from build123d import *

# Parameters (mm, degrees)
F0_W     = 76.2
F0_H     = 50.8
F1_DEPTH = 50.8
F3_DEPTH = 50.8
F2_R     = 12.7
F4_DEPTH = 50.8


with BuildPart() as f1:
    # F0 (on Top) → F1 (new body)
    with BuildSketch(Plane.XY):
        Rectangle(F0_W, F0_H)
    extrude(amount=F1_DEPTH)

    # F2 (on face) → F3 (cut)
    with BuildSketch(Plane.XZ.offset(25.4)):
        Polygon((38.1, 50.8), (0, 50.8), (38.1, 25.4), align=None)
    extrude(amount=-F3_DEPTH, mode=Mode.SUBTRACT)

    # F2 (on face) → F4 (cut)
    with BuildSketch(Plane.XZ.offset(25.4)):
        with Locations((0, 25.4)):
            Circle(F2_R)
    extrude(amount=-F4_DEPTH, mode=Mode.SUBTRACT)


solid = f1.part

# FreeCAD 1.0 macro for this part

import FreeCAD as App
import Part
import Sketcher

V = App.Vector
Q = App.Units.Quantity

doc = App.newDocument("Part")
params = doc.addObject("Spreadsheet::Sheet", "Params")
for row, (alias, value) in enumerate([
    ("sketch1_width", "3 in"),
    ("sketch1_height", "2 in"),
    ("pad1_length", "2 in"),
    ("sketch2_height", "1 in"),
    ("sketch2_width", "1.5 in"),
    ("pocket1_length", "2 in"),
    ("sketch3_diameter", "1 in"),
    ("pocket2_length", "2 in"),
], start=1):
    params.set(f"A{row}", alias)
    params.set(f"B{row}", "=" + value)
    params.setAlias(f"B{row}", alias)

body = doc.addObject("PartDesign::Body", "Body")

# Sketch on XY plane
sketch1 = body.newObject("Sketcher::SketchObject", "Sketch")
sketch1.AttachmentSupport = (doc.getObject("XY_Plane"), [""])
sketch1.MapMode = "FlatFace"
sketch1.addGeometry(Part.LineSegment(V(-38, 25, 0), V(-38, -25, 0)), False)
sketch1.addGeometry(Part.LineSegment(V(-38, -25, 0), V(38, -25, 0)), False)
sketch1.addGeometry(Part.LineSegment(V(38, -25, 0), V(38, 25, 0)), False)
sketch1.addGeometry(Part.LineSegment(V(38, 25, 0), V(-38, 25, 0)), False)
sketch1.addConstraint(Sketcher.Constraint("Coincident", 0, 2, 1, 1))
sketch1.addConstraint(Sketcher.Constraint("Coincident", 1, 2, 2, 1))
sketch1.addConstraint(Sketcher.Constraint("Coincident", 2, 2, 3, 1))
sketch1.addConstraint(Sketcher.Constraint("Coincident", 3, 2, 0, 1))
sketch1.addConstraint(Sketcher.Constraint("Vertical", 0))
sketch1.addConstraint(Sketcher.Constraint("Horizontal", 1))
sketch1.addConstraint(Sketcher.Constraint("Vertical", 2))
sketch1.addConstraint(Sketcher.Constraint("Horizontal", 3))
sketch1.addConstraint(Sketcher.Constraint("Symmetric", 0, 2, 2, 2, -1, 1))
sketch1.addConstraint(Sketcher.Constraint("DistanceX", 1, 1, 1, 2, Q("3 in")))
sketch1.addConstraint(Sketcher.Constraint("DistanceY", 0, 2, 0, 1, Q("2 in")))
sketch1.setExpression("Constraints[9]", "Params.sketch1_width")
sketch1.setExpression("Constraints[10]", "Params.sketch1_height")
pad1 = body.newObject("PartDesign::Pad", "Pad")
pad1.Profile = sketch1
pad1.setExpression("Length", "Params.pad1_length")

# Sketch on XZ plane
sketch2 = body.newObject("Sketcher::SketchObject", "Sketch001")
sketch2.AttachmentSupport = (doc.getObject("XZ_Plane"), [""])
sketch2.MapMode = "FlatFace"
sketch2.AttachmentOffset = App.Placement(V(0, 0, 1 * 25.4), App.Rotation())
sketch2.addGeometry(Part.LineSegment(V(38, 51, 0), V(0, 51, 0)), False)
sketch2.addGeometry(Part.LineSegment(V(0, 51, 0), V(38, 25, 0)), False)
sketch2.addGeometry(Part.LineSegment(V(38, 25, 0), V(38, 51, 0)), False)
sketch2.addConstraint(Sketcher.Constraint("Coincident", 0, 2, 1, 1))
sketch2.addConstraint(Sketcher.Constraint("Coincident", 1, 2, 2, 1))
sketch2.addConstraint(Sketcher.Constraint("Coincident", 2, 2, 0, 1))
sketch2.addConstraint(Sketcher.Constraint("Horizontal", 0))
sketch2.addConstraint(Sketcher.Constraint("Vertical", 2))
sketch2.addConstraint(Sketcher.Constraint("PointOnObject", 0, 2, -2))
sketch2.addConstraint(Sketcher.Constraint("DistanceY", 2, 1, 2, 2, Q("1 in")))
sketch2.addConstraint(Sketcher.Constraint("DistanceX", 0, 2, 0, 1, Q("1.5 in")))
sketch2.addConstraint(Sketcher.Constraint("DistanceY", -1, 1, 0, 2, Q("2 in")))
sketch2.setExpression("Constraints[6]", "Params.sketch2_height")
sketch2.setExpression("Constraints[7]", "Params.sketch2_width")
pocket1 = body.newObject("PartDesign::Pocket", "Pocket")
pocket1.Profile = sketch2
pocket1.setExpression("Length", "Params.pocket1_length")

# Sketch on XZ plane
sketch3 = body.newObject("Sketcher::SketchObject", "Sketch002")
sketch3.AttachmentSupport = (doc.getObject("XZ_Plane"), [""])
sketch3.MapMode = "FlatFace"
sketch3.AttachmentOffset = App.Placement(V(0, 0, 1 * 25.4), App.Rotation())
sketch3.addGeometry(Part.Circle(V(0, 25, 0), V(0, 0, 1), 13), False)
sketch3.addConstraint(Sketcher.Constraint("PointOnObject", 0, 3, -2))
sketch3.addConstraint(Sketcher.Constraint("Diameter", 0, Q("1 in")))
sketch3.addConstraint(Sketcher.Constraint("DistanceY", -1, 1, 0, 3, Q("1 in")))
sketch3.setExpression("Constraints[1]", "Params.sketch3_diameter")
pocket2 = body.newObject("PartDesign::Pocket", "Pocket001")
pocket2.Profile = sketch3
pocket2.setExpression("Length", "Params.pocket2_length")

doc.recompute()
